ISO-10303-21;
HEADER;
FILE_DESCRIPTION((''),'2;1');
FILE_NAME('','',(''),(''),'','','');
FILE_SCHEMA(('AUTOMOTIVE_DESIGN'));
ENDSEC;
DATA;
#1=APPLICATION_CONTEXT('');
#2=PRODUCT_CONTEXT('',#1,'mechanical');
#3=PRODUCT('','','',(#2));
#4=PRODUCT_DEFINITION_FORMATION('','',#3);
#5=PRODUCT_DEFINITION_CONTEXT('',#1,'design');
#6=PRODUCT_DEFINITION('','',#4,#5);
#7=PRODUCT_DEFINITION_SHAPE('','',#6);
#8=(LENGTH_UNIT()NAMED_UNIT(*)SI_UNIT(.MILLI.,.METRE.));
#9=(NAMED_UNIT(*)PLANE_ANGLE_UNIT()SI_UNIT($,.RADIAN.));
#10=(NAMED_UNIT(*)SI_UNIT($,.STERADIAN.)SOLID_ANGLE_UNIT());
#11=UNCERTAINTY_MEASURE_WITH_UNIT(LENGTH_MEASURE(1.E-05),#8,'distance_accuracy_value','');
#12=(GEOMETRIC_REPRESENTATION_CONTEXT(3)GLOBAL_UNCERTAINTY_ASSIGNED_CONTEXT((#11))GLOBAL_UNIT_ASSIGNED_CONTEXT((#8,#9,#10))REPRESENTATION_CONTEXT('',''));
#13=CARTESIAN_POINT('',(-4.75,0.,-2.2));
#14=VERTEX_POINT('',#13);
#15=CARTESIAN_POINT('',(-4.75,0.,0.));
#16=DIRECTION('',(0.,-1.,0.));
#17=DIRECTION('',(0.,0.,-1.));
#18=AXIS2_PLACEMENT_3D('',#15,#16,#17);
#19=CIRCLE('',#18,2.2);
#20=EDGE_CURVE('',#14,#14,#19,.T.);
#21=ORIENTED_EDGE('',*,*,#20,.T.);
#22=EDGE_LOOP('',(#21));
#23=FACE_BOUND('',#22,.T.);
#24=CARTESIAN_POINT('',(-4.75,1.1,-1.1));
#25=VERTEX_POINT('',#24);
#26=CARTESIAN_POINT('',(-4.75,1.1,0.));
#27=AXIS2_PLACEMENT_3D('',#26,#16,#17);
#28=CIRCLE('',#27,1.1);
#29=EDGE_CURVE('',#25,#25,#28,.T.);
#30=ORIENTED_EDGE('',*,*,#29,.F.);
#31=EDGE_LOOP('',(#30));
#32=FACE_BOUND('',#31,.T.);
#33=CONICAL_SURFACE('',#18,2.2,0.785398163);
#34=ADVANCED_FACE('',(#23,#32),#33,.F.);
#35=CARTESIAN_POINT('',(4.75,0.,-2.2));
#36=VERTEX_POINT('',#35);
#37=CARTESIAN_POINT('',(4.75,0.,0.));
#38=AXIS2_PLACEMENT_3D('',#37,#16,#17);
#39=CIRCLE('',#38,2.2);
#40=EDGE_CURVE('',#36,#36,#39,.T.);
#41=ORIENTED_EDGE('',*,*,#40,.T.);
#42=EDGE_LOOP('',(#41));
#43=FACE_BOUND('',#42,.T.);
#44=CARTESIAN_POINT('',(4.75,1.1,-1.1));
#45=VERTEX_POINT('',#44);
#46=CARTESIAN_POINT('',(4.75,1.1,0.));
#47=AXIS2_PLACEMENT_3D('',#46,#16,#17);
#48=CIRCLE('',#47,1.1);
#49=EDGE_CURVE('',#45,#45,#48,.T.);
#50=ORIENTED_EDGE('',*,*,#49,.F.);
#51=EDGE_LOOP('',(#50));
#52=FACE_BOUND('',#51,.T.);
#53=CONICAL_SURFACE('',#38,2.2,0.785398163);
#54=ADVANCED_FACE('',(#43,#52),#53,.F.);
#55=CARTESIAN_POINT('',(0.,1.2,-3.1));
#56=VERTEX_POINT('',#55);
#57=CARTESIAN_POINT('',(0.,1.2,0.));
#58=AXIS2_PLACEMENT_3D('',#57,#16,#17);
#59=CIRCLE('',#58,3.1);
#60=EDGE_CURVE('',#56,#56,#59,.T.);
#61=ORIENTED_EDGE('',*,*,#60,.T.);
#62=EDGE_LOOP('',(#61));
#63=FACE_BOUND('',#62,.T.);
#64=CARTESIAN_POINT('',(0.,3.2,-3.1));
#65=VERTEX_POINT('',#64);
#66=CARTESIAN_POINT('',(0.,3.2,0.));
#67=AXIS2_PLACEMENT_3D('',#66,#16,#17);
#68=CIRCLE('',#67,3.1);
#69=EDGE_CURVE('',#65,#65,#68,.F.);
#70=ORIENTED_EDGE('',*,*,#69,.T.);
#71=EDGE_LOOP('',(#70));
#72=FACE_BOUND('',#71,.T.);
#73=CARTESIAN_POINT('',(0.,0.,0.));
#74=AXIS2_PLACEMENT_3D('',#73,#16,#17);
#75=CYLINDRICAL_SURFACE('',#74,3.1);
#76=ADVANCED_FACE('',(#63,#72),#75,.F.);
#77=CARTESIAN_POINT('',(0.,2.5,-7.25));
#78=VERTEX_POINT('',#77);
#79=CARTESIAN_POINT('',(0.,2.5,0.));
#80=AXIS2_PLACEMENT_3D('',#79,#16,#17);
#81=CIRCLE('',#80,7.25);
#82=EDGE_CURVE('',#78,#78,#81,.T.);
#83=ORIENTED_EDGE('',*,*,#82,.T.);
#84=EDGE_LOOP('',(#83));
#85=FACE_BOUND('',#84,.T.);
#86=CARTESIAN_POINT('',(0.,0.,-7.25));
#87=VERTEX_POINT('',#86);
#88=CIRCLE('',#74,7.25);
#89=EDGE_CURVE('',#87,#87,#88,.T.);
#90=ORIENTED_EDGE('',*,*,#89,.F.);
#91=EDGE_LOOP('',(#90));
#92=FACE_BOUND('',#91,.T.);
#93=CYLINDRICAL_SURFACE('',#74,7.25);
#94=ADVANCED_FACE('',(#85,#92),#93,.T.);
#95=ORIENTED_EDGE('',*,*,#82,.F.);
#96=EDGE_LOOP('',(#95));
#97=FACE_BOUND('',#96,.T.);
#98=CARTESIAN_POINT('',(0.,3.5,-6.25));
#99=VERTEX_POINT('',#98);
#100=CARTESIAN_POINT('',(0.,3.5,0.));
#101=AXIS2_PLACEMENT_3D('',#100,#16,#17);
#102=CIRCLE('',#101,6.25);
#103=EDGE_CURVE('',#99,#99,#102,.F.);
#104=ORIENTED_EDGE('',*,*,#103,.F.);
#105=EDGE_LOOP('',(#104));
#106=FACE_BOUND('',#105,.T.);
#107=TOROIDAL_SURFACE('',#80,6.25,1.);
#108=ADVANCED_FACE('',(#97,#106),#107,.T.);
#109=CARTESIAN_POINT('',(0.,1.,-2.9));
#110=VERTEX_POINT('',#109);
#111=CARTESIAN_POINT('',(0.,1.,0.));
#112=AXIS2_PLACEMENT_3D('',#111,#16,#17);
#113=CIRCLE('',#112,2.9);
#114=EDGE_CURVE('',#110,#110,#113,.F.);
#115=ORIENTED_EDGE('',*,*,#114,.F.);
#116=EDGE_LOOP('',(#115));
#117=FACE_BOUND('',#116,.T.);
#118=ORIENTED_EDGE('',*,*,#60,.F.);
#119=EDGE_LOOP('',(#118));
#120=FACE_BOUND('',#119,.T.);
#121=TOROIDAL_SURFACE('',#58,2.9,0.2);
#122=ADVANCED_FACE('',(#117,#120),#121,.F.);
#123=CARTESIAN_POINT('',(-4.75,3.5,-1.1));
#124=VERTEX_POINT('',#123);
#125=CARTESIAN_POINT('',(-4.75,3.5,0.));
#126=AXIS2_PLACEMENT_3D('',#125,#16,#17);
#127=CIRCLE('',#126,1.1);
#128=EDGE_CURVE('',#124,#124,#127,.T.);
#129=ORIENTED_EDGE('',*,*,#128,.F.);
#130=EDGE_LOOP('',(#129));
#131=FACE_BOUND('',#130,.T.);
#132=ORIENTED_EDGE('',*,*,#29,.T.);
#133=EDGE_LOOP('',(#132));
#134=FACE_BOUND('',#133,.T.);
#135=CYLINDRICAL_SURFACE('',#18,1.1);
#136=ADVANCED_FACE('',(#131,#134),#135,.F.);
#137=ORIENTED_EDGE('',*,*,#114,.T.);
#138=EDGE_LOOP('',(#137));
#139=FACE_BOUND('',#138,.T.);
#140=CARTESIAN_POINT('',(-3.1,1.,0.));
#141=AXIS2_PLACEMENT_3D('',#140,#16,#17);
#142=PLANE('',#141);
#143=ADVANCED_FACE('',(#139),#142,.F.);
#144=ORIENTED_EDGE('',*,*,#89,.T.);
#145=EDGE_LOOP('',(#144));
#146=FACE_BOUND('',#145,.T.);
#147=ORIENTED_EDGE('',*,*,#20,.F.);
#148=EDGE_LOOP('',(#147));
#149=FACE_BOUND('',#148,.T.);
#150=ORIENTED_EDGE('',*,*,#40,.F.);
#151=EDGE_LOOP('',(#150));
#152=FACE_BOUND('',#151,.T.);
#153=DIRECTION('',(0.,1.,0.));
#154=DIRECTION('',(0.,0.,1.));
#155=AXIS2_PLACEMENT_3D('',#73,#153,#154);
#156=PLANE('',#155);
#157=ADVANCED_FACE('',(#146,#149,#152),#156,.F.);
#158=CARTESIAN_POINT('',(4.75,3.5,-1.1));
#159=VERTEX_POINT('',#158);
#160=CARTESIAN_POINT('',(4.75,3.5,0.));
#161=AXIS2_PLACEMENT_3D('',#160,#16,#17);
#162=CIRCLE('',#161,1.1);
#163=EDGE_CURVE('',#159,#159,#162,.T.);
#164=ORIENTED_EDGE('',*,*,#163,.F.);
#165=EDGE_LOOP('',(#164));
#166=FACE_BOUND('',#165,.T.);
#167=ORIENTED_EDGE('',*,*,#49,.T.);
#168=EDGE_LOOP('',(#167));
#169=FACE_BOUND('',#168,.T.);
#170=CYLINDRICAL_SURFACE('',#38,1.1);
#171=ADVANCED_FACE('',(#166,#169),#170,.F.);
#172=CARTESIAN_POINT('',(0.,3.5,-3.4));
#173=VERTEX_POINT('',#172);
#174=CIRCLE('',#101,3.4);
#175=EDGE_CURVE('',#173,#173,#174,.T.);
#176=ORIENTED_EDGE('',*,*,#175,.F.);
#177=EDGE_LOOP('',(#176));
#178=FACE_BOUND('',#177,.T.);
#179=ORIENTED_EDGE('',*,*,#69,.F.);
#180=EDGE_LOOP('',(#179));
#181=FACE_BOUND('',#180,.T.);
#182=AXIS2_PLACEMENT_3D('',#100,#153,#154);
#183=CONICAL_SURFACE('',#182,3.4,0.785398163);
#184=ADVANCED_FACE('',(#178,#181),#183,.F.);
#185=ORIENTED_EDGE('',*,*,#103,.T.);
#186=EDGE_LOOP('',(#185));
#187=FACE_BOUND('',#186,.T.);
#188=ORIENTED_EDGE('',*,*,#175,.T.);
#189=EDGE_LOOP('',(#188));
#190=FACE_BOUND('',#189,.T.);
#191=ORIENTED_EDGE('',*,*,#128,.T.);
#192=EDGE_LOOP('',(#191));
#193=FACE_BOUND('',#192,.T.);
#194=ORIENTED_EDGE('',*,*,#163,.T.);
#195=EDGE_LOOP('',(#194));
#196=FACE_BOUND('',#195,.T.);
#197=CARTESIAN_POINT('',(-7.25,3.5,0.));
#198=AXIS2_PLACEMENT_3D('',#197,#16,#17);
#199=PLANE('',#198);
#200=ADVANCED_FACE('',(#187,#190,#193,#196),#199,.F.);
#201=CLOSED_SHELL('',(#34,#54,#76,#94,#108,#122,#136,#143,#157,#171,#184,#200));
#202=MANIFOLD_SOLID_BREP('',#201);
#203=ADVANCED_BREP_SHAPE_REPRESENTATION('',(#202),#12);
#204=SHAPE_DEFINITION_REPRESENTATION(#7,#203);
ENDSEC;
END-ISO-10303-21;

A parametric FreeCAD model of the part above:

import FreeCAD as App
import Part
import Sketcher
Q = App.Units.Quantity


def edges_at(feature, points):
    """Names of the edges that pass closest to the given points."""
    edges = feature.Shape.Edges
    near = lambda p: min(range(len(edges)), key=lambda i: edges[i].distToShape(Part.Vertex(*p))[0])
    return sorted({f"Edge{near(p) + 1}" for p in points})

doc = App.newDocument("Part")
body = doc.addObject("PartDesign::Body", "Body")

# Sketch on XY plane
sketch1 = doc.addObject("Sketcher::SketchObject", "Sketch")
body.addObject(sketch1)
sketch1.AttachmentSupport = (doc.XY_Plane, [""])
sketch1.MapMode = "FlatFace"
sketch1.addGeometry(Part.LineSegment(App.Vector(-7.25, 0, 0), App.Vector(0, 0, 0)), False)
sketch1.addGeometry(Part.LineSegment(App.Vector(0, 0, 0), App.Vector(0, 1, 0)), False)
sketch1.addGeometry(Part.LineSegment(App.Vector(0, 1, 0), App.Vector(-3.1, 1, 0)), False)
sketch1.addGeometry(Part.LineSegment(App.Vector(-3.1, 1, 0), App.Vector(-3.1, 3.5, 0)), False)
sketch1.addGeometry(Part.LineSegment(App.Vector(-3.1, 3.5, 0), App.Vector(-7.25, 3.5, 0)), False)
sketch1.addGeometry(Part.LineSegment(App.Vector(-7.25, 3.5, 0), App.Vector(-7.25, 0, 0)), False)
sketch1.addConstraint(Sketcher.Constraint("Coincident", 0, 2, 1, 1))
sketch1.addConstraint(Sketcher.Constraint("Coincident", 1, 2, 2, 1))
sketch1.addConstraint(Sketcher.Constraint("Coincident", 2, 2, 3, 1))
sketch1.addConstraint(Sketcher.Constraint("Coincident", 3, 2, 4, 1))
sketch1.addConstraint(Sketcher.Constraint("Coincident", 4, 2, 5, 1))
sketch1.addConstraint(Sketcher.Constraint("Coincident", 5, 2, 0, 1))
sketch1.addConstraint(Sketcher.Constraint("Horizontal", 0))
sketch1.addConstraint(Sketcher.Constraint("Vertical", 1))
sketch1.addConstraint(Sketcher.Constraint("Horizontal", 2))
sketch1.addConstraint(Sketcher.Constraint("Vertical", 3))
sketch1.addConstraint(Sketcher.Constraint("Horizontal", 4))
sketch1.addConstraint(Sketcher.Constraint("Vertical", 5))
sketch1.addConstraint(Sketcher.Constraint("Coincident", 0, 2, -1, 1))
sketch1.addConstraint(Sketcher.Constraint("DistanceY", 1, 1, 1, 2, 1.0))
sketch1.addConstraint(Sketcher.Constraint("DistanceX", 2, 2, 2, 1, 3.1))
sketch1.addConstraint(Sketcher.Constraint("DistanceY", 3, 1, 3, 2, 2.5))
sketch1.addConstraint(Sketcher.Constraint("DistanceX", 0, 1, 0, 2, 7.25))
revolution = doc.addObject("PartDesign::Revolution", "Revolution")
body.addObject(revolution)
revolution.Profile = sketch1
revolution.ReferenceAxis = (sketch1, ["V_Axis"])
revolution.Angle = 360
doc.recompute()

chamfer = doc.addObject("PartDesign::Chamfer", "Chamfer")
body.addObject(chamfer)
chamfer.Base = (revolution, edges_at(revolution, [(0, 3.5, 3.1)]))
chamfer.Size = 0.3

# Sketch on YZ plane
sketch2 = doc.addObject("Sketcher::SketchObject", "Sketch001")
body.addObject(sketch2)
sketch2.AttachmentSupport = (doc.YZ_Plane, [""])
sketch2.MapMode = "FlatFace"
sketch2.AttachmentOffset = App.Placement(App.Vector(0, 0, -4.75), App.Rotation())
sketch2.addGeometry(Part.LineSegment(App.Vector(5.660947, 0, 0), App.Vector(0, 0, 0)), False)
sketch2.addGeometry(Part.LineSegment(App.Vector(0, 0, 0), App.Vector(0, -2.2, 0)), False)
sketch2.addGeometry(Part.LineSegment(App.Vector(0, -2.2, 0), App.Vector(1.1, -1.1, 0)), False)
sketch2.addGeometry(Part.LineSegment(App.Vector(1.1, -1.1, 0), App.Vector(5, -1.1, 0)), False)
sketch2.addGeometry(Part.LineSegment(App.Vector(5, -1.1, 0), App.Vector(5.660947, 0, 0)), False)
sketch2.addConstraint(Sketcher.Constraint("Coincident", 0, 2, 1, 1))
sketch2.addConstraint(Sketcher.Constraint("Coincident", 1, 2, 2, 1))
sketch2.addConstraint(Sketcher.Constraint("Coincident", 2, 2, 3, 1))
sketch2.addConstraint(Sketcher.Constraint("Coincident", 3, 2, 4, 1))
sketch2.addConstraint(Sketcher.Constraint("Coincident", 4, 2, 0, 1))
sketch2.addConstraint(Sketcher.Constraint("Horizontal", 0))
sketch2.addConstraint(Sketcher.Constraint("Vertical", 1))
sketch2.addConstraint(Sketcher.Constraint("Horizontal", 3))
sketch2.addConstraint(Sketcher.Constraint("Coincident", 0, 2, -1, 1))
sketch2.addConstraint(Sketcher.Constraint("Angle", 2, Q("45 deg")))
sketch2.addConstraint(Sketcher.Constraint("Angle", 4, Q("59 deg")))
sketch2.addConstraint(Sketcher.Constraint("DistanceX", 3, 1, 3, 2, 3.9))
sketch2.addConstraint(Sketcher.Constraint("DistanceY", 1, 2, 1, 1, 2.2))
sketch2.addConstraint(Sketcher.Constraint("DistanceX", -1, 1, 3, 2, 5.0))
groove = doc.addObject("PartDesign::Groove", "Groove")
body.addObject(groove)
groove.Profile = sketch2
groove.ReferenceAxis = (sketch2, ["H_Axis"])
groove.Angle = 360
doc.recompute()

polarpattern = doc.addObject("PartDesign::PolarPattern", "PolarPattern")
body.addObject(polarpattern)
polarpattern.Originals = [groove]
polarpattern.Axis = (doc.Y_Axis, [""])
polarpattern.Angle = 360
polarpattern.Occurrences = 2
body.Tip = polarpattern
doc.recompute()

fillet = doc.addObject("PartDesign::Fillet", "Fillet")
body.addObject(fillet)
fillet.Base = (polarpattern, edges_at(polarpattern, [(0, 1, 3.1)]))
fillet.Radius = 0.2
doc.recompute()

fillet2 = doc.addObject("PartDesign::Fillet", "Fillet001")
body.addObject(fillet2)
fillet2.Base = (fillet, edges_at(fillet, [(0, 3.5, 7.25)]))
fillet2.Radius = 1

doc.recompute()
